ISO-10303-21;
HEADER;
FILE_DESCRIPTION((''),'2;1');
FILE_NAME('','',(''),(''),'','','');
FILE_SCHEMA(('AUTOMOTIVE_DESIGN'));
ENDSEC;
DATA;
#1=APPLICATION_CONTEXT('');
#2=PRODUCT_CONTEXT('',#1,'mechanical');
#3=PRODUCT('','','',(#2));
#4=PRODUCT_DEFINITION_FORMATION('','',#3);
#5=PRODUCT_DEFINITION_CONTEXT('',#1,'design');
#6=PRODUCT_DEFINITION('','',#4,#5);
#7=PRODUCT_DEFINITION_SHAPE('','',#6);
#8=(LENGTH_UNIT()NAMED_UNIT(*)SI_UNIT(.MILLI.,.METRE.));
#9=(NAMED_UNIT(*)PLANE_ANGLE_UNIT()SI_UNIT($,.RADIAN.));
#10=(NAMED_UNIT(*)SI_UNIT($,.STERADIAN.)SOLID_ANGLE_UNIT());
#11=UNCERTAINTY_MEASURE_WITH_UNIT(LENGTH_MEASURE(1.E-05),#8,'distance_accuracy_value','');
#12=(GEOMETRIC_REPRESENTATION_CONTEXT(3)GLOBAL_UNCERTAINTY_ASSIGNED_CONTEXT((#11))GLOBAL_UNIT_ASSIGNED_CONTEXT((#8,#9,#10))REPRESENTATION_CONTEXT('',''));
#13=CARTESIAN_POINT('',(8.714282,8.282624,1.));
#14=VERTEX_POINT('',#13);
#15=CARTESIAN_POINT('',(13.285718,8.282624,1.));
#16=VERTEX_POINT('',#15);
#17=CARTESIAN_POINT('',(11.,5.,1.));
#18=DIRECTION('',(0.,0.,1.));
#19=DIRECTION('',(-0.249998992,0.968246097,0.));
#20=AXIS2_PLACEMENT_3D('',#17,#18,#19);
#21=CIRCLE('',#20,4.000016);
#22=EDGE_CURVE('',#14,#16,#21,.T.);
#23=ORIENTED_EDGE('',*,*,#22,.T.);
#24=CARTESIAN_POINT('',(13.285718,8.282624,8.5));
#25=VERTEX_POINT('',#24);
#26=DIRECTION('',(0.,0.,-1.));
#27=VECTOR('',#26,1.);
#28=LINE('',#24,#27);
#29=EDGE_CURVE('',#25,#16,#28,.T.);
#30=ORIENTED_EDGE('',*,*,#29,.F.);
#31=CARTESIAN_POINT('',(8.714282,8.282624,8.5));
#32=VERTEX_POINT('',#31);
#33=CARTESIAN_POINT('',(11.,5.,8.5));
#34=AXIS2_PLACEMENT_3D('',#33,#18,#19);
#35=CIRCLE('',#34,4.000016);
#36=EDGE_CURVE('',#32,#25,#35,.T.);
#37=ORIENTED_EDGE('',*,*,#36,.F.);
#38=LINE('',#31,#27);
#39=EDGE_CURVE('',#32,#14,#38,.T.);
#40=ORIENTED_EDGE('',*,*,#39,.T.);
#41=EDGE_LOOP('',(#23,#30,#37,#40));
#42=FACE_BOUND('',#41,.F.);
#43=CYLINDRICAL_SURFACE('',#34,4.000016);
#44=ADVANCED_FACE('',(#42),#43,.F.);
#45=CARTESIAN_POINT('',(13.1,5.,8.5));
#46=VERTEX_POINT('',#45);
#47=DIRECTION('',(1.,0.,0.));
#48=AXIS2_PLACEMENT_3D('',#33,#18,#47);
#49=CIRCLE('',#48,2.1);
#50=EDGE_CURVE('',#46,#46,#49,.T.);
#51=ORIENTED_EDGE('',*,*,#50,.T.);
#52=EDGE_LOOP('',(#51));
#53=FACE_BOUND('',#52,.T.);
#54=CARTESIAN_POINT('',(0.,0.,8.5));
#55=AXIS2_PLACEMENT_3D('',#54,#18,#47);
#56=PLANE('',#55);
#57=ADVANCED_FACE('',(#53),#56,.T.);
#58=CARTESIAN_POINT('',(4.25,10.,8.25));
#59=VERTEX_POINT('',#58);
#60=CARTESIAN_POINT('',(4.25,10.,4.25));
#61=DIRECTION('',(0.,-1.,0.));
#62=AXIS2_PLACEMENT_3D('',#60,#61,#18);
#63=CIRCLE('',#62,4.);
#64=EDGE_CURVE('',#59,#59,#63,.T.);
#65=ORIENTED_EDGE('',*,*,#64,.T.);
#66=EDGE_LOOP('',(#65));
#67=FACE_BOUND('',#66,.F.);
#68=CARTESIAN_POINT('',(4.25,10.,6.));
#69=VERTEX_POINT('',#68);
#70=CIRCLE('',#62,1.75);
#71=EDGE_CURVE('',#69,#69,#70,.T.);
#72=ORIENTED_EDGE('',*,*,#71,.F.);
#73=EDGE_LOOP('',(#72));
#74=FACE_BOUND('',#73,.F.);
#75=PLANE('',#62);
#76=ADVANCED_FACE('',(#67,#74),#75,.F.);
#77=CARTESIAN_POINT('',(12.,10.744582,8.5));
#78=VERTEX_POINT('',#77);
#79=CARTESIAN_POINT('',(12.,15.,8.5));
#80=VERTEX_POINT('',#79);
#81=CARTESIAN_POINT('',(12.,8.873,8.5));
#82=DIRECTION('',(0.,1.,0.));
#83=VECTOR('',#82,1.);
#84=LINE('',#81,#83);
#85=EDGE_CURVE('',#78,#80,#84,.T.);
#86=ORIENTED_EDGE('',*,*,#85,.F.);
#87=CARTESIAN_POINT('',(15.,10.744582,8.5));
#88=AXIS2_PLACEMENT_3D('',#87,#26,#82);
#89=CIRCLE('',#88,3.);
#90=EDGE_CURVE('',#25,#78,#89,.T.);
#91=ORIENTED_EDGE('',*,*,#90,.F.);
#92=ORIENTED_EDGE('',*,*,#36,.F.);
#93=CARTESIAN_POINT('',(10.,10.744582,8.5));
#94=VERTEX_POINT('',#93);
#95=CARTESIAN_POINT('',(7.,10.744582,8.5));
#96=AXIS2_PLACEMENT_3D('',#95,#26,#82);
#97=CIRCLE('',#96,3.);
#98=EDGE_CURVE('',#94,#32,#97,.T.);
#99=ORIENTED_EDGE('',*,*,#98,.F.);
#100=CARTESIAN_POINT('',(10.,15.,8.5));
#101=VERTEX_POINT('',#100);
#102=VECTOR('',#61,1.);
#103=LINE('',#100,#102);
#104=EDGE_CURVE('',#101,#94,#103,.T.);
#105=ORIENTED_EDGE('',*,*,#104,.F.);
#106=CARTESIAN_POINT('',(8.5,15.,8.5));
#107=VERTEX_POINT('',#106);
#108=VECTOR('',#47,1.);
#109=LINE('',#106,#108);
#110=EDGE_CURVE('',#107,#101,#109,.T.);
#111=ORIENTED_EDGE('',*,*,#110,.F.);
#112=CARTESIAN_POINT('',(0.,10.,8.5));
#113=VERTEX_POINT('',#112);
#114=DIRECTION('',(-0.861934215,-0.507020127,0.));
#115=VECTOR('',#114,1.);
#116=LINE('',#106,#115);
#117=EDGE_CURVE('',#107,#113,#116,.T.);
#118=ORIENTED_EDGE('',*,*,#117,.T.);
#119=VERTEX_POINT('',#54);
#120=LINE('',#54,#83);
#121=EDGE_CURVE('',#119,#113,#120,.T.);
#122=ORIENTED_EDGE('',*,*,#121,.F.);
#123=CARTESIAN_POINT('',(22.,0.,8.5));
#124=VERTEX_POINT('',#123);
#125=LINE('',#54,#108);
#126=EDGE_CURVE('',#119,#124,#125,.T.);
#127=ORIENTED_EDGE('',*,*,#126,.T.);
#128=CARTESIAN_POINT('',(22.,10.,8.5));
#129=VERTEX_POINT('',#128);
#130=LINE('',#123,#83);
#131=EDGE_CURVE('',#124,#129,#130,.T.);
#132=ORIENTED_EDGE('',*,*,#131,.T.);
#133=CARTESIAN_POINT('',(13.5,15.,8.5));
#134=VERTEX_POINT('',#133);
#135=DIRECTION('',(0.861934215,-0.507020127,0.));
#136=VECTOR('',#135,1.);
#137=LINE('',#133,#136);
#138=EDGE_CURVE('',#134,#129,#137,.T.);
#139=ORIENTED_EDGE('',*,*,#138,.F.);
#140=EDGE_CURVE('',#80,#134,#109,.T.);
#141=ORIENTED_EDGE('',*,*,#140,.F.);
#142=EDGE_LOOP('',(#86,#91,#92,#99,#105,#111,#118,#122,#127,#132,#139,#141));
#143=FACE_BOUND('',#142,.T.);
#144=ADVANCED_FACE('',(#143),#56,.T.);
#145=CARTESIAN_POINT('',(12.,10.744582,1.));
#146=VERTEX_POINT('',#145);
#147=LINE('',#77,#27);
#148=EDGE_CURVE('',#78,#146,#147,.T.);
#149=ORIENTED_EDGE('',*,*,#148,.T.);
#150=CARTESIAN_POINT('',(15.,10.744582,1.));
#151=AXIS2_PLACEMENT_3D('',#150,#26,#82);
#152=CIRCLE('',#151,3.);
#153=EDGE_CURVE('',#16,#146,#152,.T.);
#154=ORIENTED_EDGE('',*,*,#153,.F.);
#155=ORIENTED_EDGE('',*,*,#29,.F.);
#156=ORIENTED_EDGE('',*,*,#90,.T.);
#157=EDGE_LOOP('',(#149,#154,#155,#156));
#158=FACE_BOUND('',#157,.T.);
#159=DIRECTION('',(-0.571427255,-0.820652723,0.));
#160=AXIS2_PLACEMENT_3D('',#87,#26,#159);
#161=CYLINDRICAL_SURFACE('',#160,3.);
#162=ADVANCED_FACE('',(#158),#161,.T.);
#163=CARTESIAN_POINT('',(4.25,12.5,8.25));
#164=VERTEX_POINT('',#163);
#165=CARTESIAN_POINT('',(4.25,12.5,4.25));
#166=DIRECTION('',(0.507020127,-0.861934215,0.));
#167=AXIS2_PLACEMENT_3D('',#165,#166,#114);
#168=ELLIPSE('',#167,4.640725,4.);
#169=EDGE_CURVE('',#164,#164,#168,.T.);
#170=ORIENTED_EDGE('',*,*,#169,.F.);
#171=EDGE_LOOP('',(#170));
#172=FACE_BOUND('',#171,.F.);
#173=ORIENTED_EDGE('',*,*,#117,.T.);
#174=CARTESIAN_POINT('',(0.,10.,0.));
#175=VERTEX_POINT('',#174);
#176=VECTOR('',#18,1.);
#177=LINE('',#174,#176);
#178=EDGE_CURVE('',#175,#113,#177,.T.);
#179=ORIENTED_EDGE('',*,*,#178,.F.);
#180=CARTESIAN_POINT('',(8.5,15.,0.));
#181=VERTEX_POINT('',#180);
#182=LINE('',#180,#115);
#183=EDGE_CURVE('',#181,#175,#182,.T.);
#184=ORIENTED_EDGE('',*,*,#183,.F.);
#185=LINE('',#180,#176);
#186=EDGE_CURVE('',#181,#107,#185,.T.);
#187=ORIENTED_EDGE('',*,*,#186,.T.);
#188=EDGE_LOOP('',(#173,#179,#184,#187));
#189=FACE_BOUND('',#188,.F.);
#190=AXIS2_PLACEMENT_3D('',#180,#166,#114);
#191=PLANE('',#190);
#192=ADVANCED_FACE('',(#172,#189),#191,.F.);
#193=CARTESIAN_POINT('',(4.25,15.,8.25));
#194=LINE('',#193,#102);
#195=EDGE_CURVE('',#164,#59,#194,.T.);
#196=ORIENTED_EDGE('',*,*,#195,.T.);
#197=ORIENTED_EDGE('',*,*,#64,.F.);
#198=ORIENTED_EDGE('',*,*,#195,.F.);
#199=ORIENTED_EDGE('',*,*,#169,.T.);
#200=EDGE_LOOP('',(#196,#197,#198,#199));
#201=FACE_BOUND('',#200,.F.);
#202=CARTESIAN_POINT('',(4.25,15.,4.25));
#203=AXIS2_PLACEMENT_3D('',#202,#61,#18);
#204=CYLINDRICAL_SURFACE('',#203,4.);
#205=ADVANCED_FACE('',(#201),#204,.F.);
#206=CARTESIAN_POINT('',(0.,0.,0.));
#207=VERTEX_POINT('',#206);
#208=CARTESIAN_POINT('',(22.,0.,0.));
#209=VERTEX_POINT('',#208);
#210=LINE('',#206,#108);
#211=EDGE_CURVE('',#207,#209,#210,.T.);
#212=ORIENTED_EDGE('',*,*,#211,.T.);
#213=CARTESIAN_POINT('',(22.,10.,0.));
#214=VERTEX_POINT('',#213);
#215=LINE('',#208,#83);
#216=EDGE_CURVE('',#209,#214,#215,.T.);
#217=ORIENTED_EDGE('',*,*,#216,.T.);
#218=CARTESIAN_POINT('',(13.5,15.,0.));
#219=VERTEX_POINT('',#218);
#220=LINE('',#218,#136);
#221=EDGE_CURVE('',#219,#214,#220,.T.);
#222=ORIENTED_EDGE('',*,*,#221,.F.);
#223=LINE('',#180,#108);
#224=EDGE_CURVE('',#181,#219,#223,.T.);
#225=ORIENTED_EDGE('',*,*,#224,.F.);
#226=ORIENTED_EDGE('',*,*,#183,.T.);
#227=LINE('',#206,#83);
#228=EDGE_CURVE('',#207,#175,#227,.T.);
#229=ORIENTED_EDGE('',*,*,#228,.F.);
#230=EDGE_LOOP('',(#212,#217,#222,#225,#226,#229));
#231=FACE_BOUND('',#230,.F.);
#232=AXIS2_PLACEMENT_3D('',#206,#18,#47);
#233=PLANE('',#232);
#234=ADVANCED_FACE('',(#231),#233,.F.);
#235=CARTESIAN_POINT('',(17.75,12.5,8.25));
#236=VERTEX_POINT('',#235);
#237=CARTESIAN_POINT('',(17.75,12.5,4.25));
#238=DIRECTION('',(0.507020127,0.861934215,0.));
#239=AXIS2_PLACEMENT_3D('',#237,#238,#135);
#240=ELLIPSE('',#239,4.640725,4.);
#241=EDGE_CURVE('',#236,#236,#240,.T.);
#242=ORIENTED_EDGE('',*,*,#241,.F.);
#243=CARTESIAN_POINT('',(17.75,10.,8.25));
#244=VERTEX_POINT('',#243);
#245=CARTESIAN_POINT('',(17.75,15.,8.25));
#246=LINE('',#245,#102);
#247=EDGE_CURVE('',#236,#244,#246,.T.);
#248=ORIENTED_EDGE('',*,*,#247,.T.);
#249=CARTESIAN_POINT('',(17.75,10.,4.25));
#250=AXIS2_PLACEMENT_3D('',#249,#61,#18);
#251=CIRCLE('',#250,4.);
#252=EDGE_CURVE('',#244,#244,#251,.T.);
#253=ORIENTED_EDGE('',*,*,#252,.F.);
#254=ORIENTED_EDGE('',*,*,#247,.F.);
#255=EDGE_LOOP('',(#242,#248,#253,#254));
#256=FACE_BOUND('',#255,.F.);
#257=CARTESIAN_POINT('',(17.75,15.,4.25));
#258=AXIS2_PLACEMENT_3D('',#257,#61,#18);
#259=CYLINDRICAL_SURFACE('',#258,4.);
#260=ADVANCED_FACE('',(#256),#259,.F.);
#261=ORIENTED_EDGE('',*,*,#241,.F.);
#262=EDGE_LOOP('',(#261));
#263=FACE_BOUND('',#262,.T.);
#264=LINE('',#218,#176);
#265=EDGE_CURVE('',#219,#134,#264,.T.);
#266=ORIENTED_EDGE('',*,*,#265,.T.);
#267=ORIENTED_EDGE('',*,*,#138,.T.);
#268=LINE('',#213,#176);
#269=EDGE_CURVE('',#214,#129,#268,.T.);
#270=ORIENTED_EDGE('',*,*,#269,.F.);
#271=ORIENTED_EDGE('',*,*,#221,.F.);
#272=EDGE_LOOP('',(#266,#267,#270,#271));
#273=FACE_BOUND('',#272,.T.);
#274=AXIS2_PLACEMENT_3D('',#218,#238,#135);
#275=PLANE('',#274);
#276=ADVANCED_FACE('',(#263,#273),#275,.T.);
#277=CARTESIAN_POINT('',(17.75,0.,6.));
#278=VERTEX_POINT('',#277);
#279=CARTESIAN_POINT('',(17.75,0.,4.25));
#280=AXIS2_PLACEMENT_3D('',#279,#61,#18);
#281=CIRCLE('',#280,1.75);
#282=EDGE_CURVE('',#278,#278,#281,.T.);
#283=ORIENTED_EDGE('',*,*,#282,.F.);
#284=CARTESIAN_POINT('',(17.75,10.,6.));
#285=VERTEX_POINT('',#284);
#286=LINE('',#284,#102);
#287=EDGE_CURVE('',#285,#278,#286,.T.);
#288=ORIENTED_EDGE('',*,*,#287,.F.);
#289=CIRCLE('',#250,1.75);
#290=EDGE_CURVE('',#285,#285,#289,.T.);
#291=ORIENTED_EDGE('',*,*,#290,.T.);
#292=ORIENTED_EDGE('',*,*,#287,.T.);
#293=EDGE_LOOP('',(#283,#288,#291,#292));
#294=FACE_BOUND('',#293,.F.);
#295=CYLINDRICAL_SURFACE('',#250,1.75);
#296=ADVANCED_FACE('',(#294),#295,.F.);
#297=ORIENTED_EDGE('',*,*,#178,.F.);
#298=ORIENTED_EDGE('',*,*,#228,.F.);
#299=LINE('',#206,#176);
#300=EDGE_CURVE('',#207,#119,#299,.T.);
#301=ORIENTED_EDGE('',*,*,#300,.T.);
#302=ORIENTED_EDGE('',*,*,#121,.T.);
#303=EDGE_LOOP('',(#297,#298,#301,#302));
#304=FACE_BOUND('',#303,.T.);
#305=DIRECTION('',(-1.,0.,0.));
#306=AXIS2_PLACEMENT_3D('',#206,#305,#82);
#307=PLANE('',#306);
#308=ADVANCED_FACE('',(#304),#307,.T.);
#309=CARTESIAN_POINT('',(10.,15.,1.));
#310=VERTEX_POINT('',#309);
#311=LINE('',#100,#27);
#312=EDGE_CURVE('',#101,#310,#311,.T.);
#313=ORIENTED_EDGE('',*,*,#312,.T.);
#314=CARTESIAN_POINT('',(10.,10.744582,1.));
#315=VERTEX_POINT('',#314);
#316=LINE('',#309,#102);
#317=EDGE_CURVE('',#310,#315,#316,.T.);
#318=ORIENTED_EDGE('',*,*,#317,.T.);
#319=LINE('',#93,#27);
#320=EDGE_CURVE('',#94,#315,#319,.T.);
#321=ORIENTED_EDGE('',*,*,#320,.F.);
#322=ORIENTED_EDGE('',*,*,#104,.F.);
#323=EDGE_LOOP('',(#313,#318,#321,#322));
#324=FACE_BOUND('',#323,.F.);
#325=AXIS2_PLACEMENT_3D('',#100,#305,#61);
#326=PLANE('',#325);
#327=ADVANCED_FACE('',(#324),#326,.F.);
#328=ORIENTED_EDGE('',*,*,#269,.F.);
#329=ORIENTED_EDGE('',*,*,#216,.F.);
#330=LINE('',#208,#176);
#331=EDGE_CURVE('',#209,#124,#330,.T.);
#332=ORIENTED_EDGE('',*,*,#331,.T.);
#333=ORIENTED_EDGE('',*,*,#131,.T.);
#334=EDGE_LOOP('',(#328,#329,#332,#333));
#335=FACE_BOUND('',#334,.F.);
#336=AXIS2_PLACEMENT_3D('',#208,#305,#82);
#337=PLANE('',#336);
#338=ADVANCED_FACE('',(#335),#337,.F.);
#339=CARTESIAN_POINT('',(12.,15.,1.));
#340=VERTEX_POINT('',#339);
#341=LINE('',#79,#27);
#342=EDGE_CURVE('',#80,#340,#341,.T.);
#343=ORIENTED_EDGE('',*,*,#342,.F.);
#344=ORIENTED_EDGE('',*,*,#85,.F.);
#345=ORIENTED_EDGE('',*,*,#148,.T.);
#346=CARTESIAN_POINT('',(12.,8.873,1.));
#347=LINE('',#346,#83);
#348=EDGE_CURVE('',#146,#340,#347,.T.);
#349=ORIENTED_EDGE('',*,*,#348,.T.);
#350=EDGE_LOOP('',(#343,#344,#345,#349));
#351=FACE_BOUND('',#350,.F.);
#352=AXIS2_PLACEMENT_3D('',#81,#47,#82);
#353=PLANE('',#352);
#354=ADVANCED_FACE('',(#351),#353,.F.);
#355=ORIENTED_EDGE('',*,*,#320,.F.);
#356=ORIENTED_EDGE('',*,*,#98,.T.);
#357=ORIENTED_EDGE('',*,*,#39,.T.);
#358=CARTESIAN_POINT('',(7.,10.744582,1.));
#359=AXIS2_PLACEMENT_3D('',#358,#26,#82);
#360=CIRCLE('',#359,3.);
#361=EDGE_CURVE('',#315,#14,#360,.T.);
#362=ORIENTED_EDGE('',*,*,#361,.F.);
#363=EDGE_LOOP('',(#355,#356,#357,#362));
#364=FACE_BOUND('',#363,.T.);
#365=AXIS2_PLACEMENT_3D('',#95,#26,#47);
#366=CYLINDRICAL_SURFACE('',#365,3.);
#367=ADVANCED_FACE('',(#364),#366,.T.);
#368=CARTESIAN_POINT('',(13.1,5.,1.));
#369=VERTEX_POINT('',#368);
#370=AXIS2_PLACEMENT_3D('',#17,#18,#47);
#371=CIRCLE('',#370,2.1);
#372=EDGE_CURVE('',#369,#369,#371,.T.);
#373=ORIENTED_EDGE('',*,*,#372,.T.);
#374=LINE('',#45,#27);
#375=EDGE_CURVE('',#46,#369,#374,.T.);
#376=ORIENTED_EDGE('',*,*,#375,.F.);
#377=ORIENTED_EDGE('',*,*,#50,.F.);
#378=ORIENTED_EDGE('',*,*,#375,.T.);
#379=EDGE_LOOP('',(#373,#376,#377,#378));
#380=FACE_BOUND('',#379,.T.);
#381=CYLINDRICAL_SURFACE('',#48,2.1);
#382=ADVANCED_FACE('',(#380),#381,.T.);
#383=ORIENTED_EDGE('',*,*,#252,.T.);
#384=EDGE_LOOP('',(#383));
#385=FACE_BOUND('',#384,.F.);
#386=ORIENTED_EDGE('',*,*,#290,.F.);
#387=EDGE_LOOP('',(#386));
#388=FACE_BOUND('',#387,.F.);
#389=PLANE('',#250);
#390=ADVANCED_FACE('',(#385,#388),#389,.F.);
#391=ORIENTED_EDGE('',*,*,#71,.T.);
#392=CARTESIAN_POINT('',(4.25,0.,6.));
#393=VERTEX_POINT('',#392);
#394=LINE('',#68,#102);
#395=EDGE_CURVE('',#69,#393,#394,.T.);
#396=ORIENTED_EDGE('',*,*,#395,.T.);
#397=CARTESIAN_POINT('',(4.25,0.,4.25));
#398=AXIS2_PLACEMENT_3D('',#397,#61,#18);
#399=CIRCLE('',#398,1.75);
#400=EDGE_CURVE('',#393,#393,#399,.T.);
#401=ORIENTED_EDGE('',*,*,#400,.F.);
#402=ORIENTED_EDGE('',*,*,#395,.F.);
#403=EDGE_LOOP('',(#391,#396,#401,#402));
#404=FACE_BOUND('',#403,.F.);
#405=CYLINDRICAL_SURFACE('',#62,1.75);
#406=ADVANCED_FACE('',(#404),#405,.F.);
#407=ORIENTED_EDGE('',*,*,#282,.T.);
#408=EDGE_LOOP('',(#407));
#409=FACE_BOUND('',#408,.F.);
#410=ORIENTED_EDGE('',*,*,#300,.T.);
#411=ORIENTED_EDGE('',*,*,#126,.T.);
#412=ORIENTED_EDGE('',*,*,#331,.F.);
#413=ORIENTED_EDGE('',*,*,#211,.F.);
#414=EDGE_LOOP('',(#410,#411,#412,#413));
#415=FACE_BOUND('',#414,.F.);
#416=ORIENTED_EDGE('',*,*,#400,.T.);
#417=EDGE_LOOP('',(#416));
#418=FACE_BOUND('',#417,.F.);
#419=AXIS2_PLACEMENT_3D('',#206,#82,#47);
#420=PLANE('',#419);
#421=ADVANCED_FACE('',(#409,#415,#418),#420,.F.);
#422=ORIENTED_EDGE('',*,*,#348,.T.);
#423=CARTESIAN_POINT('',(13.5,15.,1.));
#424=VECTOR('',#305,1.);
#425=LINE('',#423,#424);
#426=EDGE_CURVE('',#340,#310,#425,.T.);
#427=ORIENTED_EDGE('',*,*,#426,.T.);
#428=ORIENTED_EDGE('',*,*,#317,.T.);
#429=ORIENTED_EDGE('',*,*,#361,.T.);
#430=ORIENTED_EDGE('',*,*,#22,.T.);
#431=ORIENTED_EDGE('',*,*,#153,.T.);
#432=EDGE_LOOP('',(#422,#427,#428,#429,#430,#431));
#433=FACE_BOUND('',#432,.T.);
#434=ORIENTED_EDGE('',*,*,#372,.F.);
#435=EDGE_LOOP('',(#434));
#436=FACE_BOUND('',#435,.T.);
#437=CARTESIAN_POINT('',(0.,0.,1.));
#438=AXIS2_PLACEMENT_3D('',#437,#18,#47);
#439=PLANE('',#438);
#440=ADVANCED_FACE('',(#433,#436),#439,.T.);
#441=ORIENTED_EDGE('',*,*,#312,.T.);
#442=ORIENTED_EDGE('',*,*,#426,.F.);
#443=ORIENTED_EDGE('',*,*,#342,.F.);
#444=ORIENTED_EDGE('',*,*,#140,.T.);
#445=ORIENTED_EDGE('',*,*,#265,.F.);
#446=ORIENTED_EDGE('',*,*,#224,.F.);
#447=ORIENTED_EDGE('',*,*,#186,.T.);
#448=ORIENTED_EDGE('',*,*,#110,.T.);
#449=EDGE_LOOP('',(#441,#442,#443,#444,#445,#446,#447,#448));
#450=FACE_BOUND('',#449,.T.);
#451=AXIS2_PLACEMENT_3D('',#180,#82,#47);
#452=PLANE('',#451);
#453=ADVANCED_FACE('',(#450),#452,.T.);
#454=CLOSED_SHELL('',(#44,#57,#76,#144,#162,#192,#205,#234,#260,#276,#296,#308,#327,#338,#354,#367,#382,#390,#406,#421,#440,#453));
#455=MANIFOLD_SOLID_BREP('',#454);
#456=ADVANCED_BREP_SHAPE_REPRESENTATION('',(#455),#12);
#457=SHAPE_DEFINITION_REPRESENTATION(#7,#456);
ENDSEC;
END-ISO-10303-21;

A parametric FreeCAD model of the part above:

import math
import FreeCAD as App
import Part
import Sketcher

V = App.Vector
Q = App.Units.Quantity


def edges_at(feature, points):
    """Names of the edges that pass closest to the given points."""
    edges = feature.Shape.Edges
    near = lambda p: min(range(len(edges)), key=lambda i: edges[i].distToShape(Part.Vertex(*p))[0])
    return sorted({f"Edge{near(p) + 1}" for p in points})


def add_polygon(sketch, points):
    """Adds a closed chain of lines whose ends are joined by coincident constraints."""
    first, n = sketch.GeometryCount, len(points)
    for a, b in zip(points, points[1:] + points[:1]):
        sketch.addGeometry(Part.LineSegment(App.Vector(*a, 0), App.Vector(*b, 0)), False)
    for i in range(n):
        sketch.addConstraint(Sketcher.Constraint("Coincident", first + i, 2, first + (i + 1) % n, 1))

doc = App.newDocument("Part")
body = doc.addObject("PartDesign::Body", "Body")

# Sketch on XY plane
sketch1 = body.newObject("Sketcher::SketchObject", "Sketch")
sketch1.AttachmentSupport = (doc.getObject("XY_Plane"), [""])
sketch1.MapMode = "FlatFace"
add_polygon(sketch1, [(0, 10), (0, 0), (22, 0), (22, 10), (13.5, 15), (8.5, 15)])  # lines 0-5
sketch1.addConstraint([
    Sketcher.Constraint("Vertical", 0),
    Sketcher.Constraint("Horizontal", 1),
    Sketcher.Constraint("Vertical", 2),
    Sketcher.Constraint("Horizontal", 4),
    Sketcher.Constraint("Coincident", 0, 2, -1, 1),
    Sketcher.Constraint("Horizontal", 2, 2, 5, 2),
    Sketcher.Constraint("Equal", 3, 5),
    Sketcher.Constraint("DistanceX", 1, 1, 1, 2, Q("22 mm")),
    Sketcher.Constraint("DistanceX", 4, 2, 4, 1, Q("5 mm")),
    Sketcher.Constraint("DistanceY", 0, 2, 0, 1, Q("10 mm")),
    Sketcher.Constraint("DistanceY", 2, 2, 3, 2, Q("5 mm")),
])
pad1 = body.newObject("PartDesign::Pad", "Pad")
pad1.Profile = sketch1
pad1.Length = 8.5

# Sketch on XY plane
sketch2 = body.newObject("Sketcher::SketchObject", "Sketch001")
sketch2.AttachmentSupport = (doc.getObject("XY_Plane"), [""])
sketch2.MapMode = "FlatFace"
sketch2.AttachmentOffset = App.Placement(V(0, 0, 8.5), App.Rotation())
sketch2.addGeometry([
    Part.LineSegment(V(12, 8.873, 0), V(12, 15, 0)),  # 0
    Part.LineSegment(V(12, 15, 0), V(10, 15, 0)),  # 1
    Part.LineSegment(V(10, 15, 0), V(10, 8.873, 0)),  # 2
    Part.ArcOfCircle(Part.Circle(V(11, 5, 0), V(0, 0, 1), 4.000016), math.radians(104.477453), math.radians(435.522547)),  # 3
    Part.Circle(V(11, 5, 0), V(0, 0, 1), 2.1),  # 4
], False)
sketch2.addConstraint([
    Sketcher.Constraint("Coincident", 0, 2, 1, 1),
    Sketcher.Constraint("Coincident", 1, 2, 2, 1),
    Sketcher.Constraint("Coincident", 2, 2, 3, 1),
    Sketcher.Constraint("Coincident", 3, 2, 0, 1),
    Sketcher.Constraint("Vertical", 0),
    Sketcher.Constraint("Horizontal", 1),
    Sketcher.Constraint("Vertical", 2),
    Sketcher.Constraint("Coincident", 4, 3, 3, 3),
    Sketcher.Constraint("Horizontal", 2, 2, 3, 2),
    Sketcher.Constraint("Radius", 3, Q("4 mm")),
    Sketcher.Constraint("Diameter", 4, Q("4.2 mm")),
    Sketcher.Constraint("DistanceX", 1, 2, 1, 1, Q("2 mm")),
    Sketcher.Constraint("DistanceX", -1, 1, 3, 3, Q("11 mm")),
    Sketcher.Constraint("DistanceY", -1, 1, 3, 3, Q("5 mm")),
    Sketcher.Constraint("DistanceY", -1, 1, 0, 2, Q("15 mm")),
])
pocket1 = body.newObject("PartDesign::Pocket", "Pocket")
pocket1.Profile = sketch2
pocket1.Length = 7.5
doc.recompute()

fillet = body.newObject("PartDesign::Fillet", "Fillet")
fillet.Base = (pocket1, edges_at(pocket1, [(12, 8.873, 4.75), (10, 8.873, 4.75)]))
fillet.Radius = 3

# Sketch on XZ plane
sketch3 = body.newObject("Sketcher::SketchObject", "Sketch002")
sketch3.AttachmentSupport = (doc.getObject("XZ_Plane"), [""])
sketch3.MapMode = "FlatFace"
sketch3.AttachmentOffset = App.Placement(V(0, 0, -15), App.Rotation())
sketch3.addGeometry([
    Part.Circle(V(17.75, 4.25, 0), V(0, 0, 1), 1.75),
    Part.Circle(V(4.25, 4.25, 0), V(0, 0, 1), 1.75),
], False)
sketch3.addConstraint([
    Sketcher.Constraint("Equal", 0, 1),
    Sketcher.Constraint("Horizontal", 0, 3, 1, 3),
    Sketcher.Constraint("Diameter", 0, Q("3.5 mm")),
    Sketcher.Constraint("DistanceX", 1, 3, 0, 3, Q("13.5 mm")),
    Sketcher.Constraint("DistanceX", -1, 1, 0, 3, Q("17.75 mm")),
    Sketcher.Constraint("DistanceY", -1, 1, 0, 3, Q("4.25 mm")),
])
doc.recompute()
hole = body.newObject("PartDesign::Hole", "Hole")
hole.Profile = sketch3
hole.ThreadType = "None"
hole.Diameter = 3.5
hole.DepthType = "ThroughAll"
hole.HoleCutType = "Counterbore"
hole.HoleCutDiameter = 8
hole.HoleCutDepth = 5
hole.Reversed = True

doc.recompute()
